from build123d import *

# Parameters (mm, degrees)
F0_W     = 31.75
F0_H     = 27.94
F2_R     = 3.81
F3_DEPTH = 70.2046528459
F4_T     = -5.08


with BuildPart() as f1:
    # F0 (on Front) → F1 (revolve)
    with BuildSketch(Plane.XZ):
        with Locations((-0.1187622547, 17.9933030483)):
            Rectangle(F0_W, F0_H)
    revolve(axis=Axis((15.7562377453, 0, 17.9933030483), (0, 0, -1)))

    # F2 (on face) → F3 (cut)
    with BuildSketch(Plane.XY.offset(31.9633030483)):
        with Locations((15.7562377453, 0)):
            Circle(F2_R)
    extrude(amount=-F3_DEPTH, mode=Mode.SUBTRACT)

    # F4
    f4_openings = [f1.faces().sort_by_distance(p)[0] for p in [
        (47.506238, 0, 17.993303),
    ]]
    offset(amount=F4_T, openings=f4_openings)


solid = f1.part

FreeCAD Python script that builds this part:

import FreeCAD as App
import Part
import Sketcher
from FreeCAD import Vector
Q = App.Units.Quantity


def faces_at(feature, points):
    """Names of the faces that lie closest to the given points."""
    faces = feature.Shape.Faces
    near = lambda p: min(range(len(faces)), key=lambda i: faces[i].distToShape(Part.Vertex(*p))[0])
    return sorted({f"Face{near(p) + 1}" for p in points})

doc = App.newDocument("Part")
body = doc.addObject("PartDesign::Body", "Body")

sketch1 = body.newObject("Sketcher::SketchObject", "Sketch")
sketch1.AttachmentSupport = (doc.getObject("XZ_Plane"), [""])
sketch1.MapMode = "FlatFace"
sketch1.addGeometry(Part.LineSegment(Vector(-16, 32, 0), Vector(-16, 4, 0)), False)
sketch1.addGeometry(Part.LineSegment(Vector(-16, 4, 0), Vector(16, 4, 0)), False)
sketch1.addGeometry(Part.LineSegment(Vector(16, 4, 0), Vector(16, 32, 0)), False)
sketch1.addGeometry(Part.LineSegment(Vector(16, 32, 0), Vector(-16, 32, 0)), False)
sketch1.addGeometry(Part.LineSegment(Vector(16, 32, 0), Vector(16, 4, 0)), True)
sketch1.addConstraint(Sketcher.Constraint("Coincident", 0, 2, 1, 1))
sketch1.addConstraint(Sketcher.Constraint("Coincident", 1, 2, 2, 1))
sketch1.addConstraint(Sketcher.Constraint("Coincident", 2, 2, 3, 1))
sketch1.addConstraint(Sketcher.Constraint("Coincident", 3, 2, 0, 1))
sketch1.addConstraint(Sketcher.Constraint("Vertical", 0))
sketch1.addConstraint(Sketcher.Constraint("Horizontal", 1))
sketch1.addConstraint(Sketcher.Constraint("Vertical", 2))
sketch1.addConstraint(Sketcher.Constraint("Horizontal", 3))
sketch1.addConstraint(Sketcher.Constraint("Vertical", 4))
sketch1.addConstraint(Sketcher.Constraint("Coincident", 4, 1, 2, 2))
sketch1.addConstraint(Sketcher.Constraint("Horizontal", 0, 2, 4, 2))
sketch1.addConstraint(Sketcher.Constraint("DistanceY", 0, 2, 0, 1, Q("1.1 in")))
sketch1.addConstraint(Sketcher.Constraint("DistanceX", 1, 1, 1, 2, Q("1.25 in")))
sketch1.addConstraint(Sketcher.Constraint("DistanceX", 0, 2, -1, 1, 15.993762))
sketch1.addConstraint(Sketcher.Constraint("DistanceY", -1, 1, 0, 2, 4.023303))
revolution = body.newObject("PartDesign::Revolution", "Revolution")
revolution.Profile = sketch1
revolution.ReferenceAxis = (sketch1, ["Axis0"])
revolution.Angle = 360

sketch2 = body.newObject("Sketcher::SketchObject", "Sketch001")
sketch2.AttachmentSupport = (doc.getObject("XY_Plane"), [""])
sketch2.MapMode = "FlatFace"
sketch2.AttachmentOffset = App.Placement(Vector(0, 0, 31.963303), App.Rotation())
sketch2.addGeometry(Part.Circle(Vector(15.8, 0, 0), Vector(0, 0, 1), 3.8), False)
sketch2.addConstraint(Sketcher.Constraint("PointOnObject", 0, 3, -1))
sketch2.addConstraint(Sketcher.Constraint("Diameter", 0, Q("0.3 in")))
sketch2.addConstraint(Sketcher.Constraint("DistanceX", -1, 1, 0, 3, 15.756238))
pocket1 = body.newObject("PartDesign::Pocket", "Pocket")
pocket1.Profile = sketch2
pocket1.Length = 70.204653
doc.recompute()

thickness = body.newObject("PartDesign::Thickness", "Thickness")
thickness.Base = (pocket1, faces_at(pocket1, [(47.506, 0, 17.993)]))
thickness.Value = Q("0.2 in")
thickness.Reversed = True
thickness.Join = "Arc"

doc.recompute()
